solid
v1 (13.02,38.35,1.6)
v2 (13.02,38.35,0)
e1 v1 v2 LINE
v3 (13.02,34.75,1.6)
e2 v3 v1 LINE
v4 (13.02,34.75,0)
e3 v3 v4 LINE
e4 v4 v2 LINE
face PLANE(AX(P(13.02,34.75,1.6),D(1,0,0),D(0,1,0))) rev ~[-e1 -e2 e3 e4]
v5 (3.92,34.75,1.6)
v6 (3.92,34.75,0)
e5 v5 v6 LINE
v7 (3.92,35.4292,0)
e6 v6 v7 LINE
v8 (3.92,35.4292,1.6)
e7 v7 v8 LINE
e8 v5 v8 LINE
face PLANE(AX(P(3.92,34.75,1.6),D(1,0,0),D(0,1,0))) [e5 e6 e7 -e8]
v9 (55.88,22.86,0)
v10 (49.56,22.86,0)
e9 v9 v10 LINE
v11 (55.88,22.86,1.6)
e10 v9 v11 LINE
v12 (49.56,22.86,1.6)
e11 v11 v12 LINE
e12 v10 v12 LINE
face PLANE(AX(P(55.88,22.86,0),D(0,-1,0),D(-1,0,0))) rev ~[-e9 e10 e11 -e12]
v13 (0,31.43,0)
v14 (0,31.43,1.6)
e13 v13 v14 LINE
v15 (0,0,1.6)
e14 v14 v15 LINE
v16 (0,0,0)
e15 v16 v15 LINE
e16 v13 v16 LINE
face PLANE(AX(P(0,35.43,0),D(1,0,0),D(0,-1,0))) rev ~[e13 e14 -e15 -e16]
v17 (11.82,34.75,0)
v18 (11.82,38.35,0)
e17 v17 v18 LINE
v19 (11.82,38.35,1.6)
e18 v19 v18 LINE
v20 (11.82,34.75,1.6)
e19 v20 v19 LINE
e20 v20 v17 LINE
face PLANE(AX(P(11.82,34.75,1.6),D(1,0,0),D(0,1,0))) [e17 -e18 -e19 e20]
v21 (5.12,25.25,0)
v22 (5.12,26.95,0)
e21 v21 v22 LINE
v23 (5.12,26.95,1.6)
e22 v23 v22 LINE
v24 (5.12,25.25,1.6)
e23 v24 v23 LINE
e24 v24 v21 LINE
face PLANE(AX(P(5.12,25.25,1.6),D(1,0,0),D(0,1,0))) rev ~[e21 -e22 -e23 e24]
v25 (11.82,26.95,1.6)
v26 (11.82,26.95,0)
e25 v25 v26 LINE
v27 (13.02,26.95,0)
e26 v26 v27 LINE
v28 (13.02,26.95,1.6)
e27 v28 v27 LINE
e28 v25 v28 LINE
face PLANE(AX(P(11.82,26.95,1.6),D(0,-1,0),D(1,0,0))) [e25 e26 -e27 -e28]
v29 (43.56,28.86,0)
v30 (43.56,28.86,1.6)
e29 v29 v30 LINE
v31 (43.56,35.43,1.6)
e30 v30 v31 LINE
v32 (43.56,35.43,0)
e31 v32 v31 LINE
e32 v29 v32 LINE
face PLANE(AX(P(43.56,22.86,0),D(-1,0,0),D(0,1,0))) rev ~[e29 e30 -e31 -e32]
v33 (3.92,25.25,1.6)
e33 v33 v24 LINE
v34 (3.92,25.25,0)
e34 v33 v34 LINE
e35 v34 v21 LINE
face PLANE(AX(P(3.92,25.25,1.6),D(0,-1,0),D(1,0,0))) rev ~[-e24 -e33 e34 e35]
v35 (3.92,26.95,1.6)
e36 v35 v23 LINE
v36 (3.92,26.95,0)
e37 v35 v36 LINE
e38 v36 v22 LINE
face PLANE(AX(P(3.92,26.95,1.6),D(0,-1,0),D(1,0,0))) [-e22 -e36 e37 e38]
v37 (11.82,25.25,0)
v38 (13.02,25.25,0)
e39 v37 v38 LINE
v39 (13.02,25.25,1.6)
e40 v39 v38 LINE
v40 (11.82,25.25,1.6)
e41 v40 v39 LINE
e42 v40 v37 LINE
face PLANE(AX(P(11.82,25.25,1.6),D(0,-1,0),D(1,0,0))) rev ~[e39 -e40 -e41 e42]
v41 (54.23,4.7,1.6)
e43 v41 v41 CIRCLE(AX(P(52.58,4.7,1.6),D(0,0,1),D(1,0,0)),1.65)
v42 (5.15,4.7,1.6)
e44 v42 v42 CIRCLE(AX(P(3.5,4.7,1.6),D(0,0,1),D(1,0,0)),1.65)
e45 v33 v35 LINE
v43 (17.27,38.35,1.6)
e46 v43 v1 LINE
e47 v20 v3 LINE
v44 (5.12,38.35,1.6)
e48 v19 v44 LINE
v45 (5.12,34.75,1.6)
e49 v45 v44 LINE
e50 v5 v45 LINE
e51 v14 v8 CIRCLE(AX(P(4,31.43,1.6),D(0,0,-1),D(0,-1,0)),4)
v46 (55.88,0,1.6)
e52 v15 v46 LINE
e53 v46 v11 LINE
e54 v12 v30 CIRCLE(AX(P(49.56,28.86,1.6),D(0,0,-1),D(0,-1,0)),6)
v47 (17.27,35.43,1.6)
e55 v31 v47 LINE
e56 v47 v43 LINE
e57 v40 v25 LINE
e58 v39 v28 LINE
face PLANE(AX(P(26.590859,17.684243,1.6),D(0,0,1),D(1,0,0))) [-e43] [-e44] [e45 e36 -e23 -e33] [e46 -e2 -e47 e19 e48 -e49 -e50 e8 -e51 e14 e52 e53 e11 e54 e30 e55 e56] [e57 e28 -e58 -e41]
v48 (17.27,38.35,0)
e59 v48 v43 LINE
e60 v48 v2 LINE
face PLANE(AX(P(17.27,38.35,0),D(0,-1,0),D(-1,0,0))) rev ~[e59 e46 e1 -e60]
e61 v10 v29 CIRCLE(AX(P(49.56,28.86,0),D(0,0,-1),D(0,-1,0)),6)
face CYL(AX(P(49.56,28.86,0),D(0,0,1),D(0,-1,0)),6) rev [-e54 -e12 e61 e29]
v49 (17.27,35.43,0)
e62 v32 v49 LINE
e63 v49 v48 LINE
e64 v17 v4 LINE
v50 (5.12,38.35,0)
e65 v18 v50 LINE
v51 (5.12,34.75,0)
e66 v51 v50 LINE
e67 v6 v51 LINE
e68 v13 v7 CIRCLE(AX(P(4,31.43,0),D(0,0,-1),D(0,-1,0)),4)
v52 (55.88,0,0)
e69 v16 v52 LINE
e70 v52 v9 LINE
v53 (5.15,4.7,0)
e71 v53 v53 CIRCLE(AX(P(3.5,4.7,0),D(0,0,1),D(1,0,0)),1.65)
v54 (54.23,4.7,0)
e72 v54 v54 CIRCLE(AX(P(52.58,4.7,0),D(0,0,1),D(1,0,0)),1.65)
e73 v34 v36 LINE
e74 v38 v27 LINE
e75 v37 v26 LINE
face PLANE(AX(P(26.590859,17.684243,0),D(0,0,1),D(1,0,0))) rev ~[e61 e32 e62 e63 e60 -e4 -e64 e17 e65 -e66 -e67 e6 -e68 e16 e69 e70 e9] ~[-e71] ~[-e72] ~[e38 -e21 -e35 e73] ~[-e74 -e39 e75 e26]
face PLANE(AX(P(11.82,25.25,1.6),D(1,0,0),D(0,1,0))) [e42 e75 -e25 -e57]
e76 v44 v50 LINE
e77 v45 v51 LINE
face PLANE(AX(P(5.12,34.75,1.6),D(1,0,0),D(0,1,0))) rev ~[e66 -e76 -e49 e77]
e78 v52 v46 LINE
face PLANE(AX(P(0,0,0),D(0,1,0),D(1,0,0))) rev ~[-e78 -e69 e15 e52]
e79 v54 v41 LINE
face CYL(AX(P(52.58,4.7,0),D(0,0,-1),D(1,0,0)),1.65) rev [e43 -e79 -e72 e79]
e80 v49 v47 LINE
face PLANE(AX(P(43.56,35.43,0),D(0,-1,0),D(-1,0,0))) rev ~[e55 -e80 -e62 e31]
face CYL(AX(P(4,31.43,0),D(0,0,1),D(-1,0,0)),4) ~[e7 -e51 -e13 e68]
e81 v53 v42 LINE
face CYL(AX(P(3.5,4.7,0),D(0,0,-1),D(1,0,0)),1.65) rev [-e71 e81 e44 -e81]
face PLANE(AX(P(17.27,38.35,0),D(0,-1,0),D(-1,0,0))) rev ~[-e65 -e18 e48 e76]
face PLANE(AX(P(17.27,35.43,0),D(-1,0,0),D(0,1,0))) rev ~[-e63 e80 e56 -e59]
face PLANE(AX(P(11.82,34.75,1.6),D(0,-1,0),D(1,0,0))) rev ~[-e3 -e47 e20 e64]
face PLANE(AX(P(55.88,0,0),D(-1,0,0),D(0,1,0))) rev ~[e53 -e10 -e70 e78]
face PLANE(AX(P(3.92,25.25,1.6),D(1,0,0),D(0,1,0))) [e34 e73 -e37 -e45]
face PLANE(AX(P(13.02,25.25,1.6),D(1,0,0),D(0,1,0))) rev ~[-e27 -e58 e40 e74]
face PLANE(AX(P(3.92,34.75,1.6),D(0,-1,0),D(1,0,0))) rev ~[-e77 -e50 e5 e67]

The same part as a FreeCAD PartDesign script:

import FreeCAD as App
import Part
import Sketcher

V = App.Vector


def edges_at(feature, points):
    """Names of the edges that pass closest to the given points."""
    edges = feature.Shape.Edges
    near = lambda p: min(range(len(edges)), key=lambda i: edges[i].distToShape(Part.Vertex(*p))[0])
    return sorted({f"Edge{near(p) + 1}" for p in points})

doc = App.newDocument("Part")
body = doc.addObject("PartDesign::Body", "Body")

# Sketch on XY plane
sketch1 = body.newObject("Sketcher::SketchObject", "Sketch")
sketch1.AttachmentSupport = (doc.getObject("XY_Plane"), [""])
sketch1.MapMode = "FlatFace"
sketch1.addGeometry(Part.LineSegment(V(0, 35.43, 0), V(0, 0, 0)), False)
sketch1.addGeometry(Part.LineSegment(V(0, 0, 0), V(55.88, 0, 0)), False)
sketch1.addGeometry(Part.LineSegment(V(55.88, 0, 0), V(55.88, 22.86, 0)), False)
sketch1.addGeometry(Part.LineSegment(V(55.88, 22.86, 0), V(43.56, 22.86, 0)), False)
sketch1.addGeometry(Part.LineSegment(V(43.56, 22.86, 0), V(43.56, 35.43, 0)), False)
sketch1.addGeometry(Part.LineSegment(V(43.56, 35.43, 0), V(17.27, 35.43, 0)), False)
sketch1.addGeometry(Part.LineSegment(V(17.27, 35.43, 0), V(17.27, 38.35, 0)), False)
sketch1.addGeometry(Part.LineSegment(V(17.27, 38.35, 0), V(4.57, 38.35, 0)), False)
sketch1.addGeometry(Part.LineSegment(V(4.57, 38.35, 0), V(4.57, 35.43, 0)), False)
sketch1.addGeometry(Part.LineSegment(V(4.57, 35.43, 0), V(0, 35.43, 0)), False)
sketch1.addGeometry(Part.Circle(V(3.5, 4.7, 0), V(0, 0, 1), 1.65), False)
sketch1.addGeometry(Part.Circle(V(52.58, 4.7, 0), V(0, 0, 1), 1.65), False)
sketch1.addConstraint(Sketcher.Constraint("Coincident", 0, 2, 1, 1))
sketch1.addConstraint(Sketcher.Constraint("Coincident", 1, 2, 2, 1))
sketch1.addConstraint(Sketcher.Constraint("Coincident", 2, 2, 3, 1))
sketch1.addConstraint(Sketcher.Constraint("Coincident", 3, 2, 4, 1))
sketch1.addConstraint(Sketcher.Constraint("Coincident", 4, 2, 5, 1))
sketch1.addConstraint(Sketcher.Constraint("Coincident", 5, 2, 6, 1))
sketch1.addConstraint(Sketcher.Constraint("Coincident", 6, 2, 7, 1))
sketch1.addConstraint(Sketcher.Constraint("Coincident", 7, 2, 8, 1))
sketch1.addConstraint(Sketcher.Constraint("Coincident", 8, 2, 9, 1))
sketch1.addConstraint(Sketcher.Constraint("Coincident", 9, 2, 0, 1))
sketch1.addConstraint(Sketcher.Constraint("Vertical", 0))
sketch1.addConstraint(Sketcher.Constraint("Horizontal", 1))
sketch1.addConstraint(Sketcher.Constraint("Vertical", 2))
sketch1.addConstraint(Sketcher.Constraint("Horizontal", 3))
sketch1.addConstraint(Sketcher.Constraint("Vertical", 4))
sketch1.addConstraint(Sketcher.Constraint("Horizontal", 5))
sketch1.addConstraint(Sketcher.Constraint("Vertical", 6))
sketch1.addConstraint(Sketcher.Constraint("Horizontal", 7))
sketch1.addConstraint(Sketcher.Constraint("Vertical", 8))
sketch1.addConstraint(Sketcher.Constraint("Horizontal", 9))
sketch1.addConstraint(Sketcher.Constraint("Coincident", 0, 2, -1, 1))
sketch1.addConstraint(Sketcher.Constraint("Equal", 10, 11))
sketch1.addConstraint(Sketcher.Constraint("Horizontal", 10, 3, 11, 3))
sketch1.addConstraint(Sketcher.Constraint("Horizontal", 5, 2, 8, 2))
sketch1.addConstraint(Sketcher.Constraint("Diameter", 10, 3.3))
sketch1.addConstraint(Sketcher.Constraint("DistanceX", 7, 2, 7, 1, 12.7))
sketch1.addConstraint(Sketcher.Constraint("DistanceX", 1, 1, 1, 2, 55.88))
sketch1.addConstraint(Sketcher.Constraint("DistanceX", 3, 2, 3, 1, 12.32))
sketch1.addConstraint(Sketcher.Constraint("DistanceX", 5, 2, 5, 1, 26.29))
sketch1.addConstraint(Sketcher.Constraint("DistanceY", 0, 2, 0, 1, 35.43))
sketch1.addConstraint(Sketcher.Constraint("DistanceY", 2, 1, 2, 2, 22.86))
sketch1.addConstraint(Sketcher.Constraint("DistanceY", 6, 1, 6, 2, 2.92))
sketch1.addConstraint(Sketcher.Constraint("DistanceX", -1, 1, 10, 3, 3.5))
sketch1.addConstraint(Sketcher.Constraint("DistanceY", -1, 1, 10, 3, 4.7))
sketch1.addConstraint(Sketcher.Constraint("DistanceX", 11, 3, 1, 2, 3.3))
pad1 = body.newObject("PartDesign::Pad", "Pad")
pad1.Profile = sketch1
pad1.Length = 1.6
doc.recompute()

fillet = body.newObject("PartDesign::Fillet", "Fillet")
fillet.Base = (pad1, edges_at(pad1, [(0, 35.43, 0.8)]))
fillet.Radius = 4
doc.recompute()

fillet2 = body.newObject("PartDesign::Fillet", "Fillet001")
fillet2.Base = (fillet, edges_at(fillet, [(43.56, 22.86, 0.8)]))
fillet2.Radius = 6

# Sketch on XY plane
sketch2 = body.newObject("Sketcher::SketchObject", "Sketch001")
sketch2.AttachmentSupport = (doc.getObject("XY_Plane"), [""])
sketch2.MapMode = "FlatFace"
sketch2.AttachmentOffset = App.Placement(V(0, 0, 1.6), App.Rotation())
sketch2.addGeometry(Part.LineSegment(V(3.92, 38.35, 0), V(3.92, 34.75, 0)), False)
sketch2.addGeometry(Part.LineSegment(V(3.92, 34.75, 0), V(5.12, 34.75, 0)), False)
sketch2.addGeometry(Part.LineSegment(V(5.12, 34.75, 0), V(5.12, 38.35, 0)), False)
sketch2.addGeometry(Part.LineSegment(V(5.12, 38.35, 0), V(3.92, 38.35, 0)), False)
sketch2.addGeometry(Part.LineSegment(V(11.82, 38.35, 0), V(11.82, 34.75, 0)), False)
sketch2.addGeometry(Part.LineSegment(V(11.82, 34.75, 0), V(13.02, 34.75, 0)), False)
sketch2.addGeometry(Part.LineSegment(V(13.02, 34.75, 0), V(13.02, 38.35, 0)), False)
sketch2.addGeometry(Part.LineSegment(V(13.02, 38.35, 0), V(11.82, 38.35, 0)), False)
sketch2.addGeometry(Part.LineSegment(V(3.92, 26.95, 0), V(3.92, 25.25, 0)), False)
sketch2.addGeometry(Part.LineSegment(V(3.92, 25.25, 0), V(5.12, 25.25, 0)), False)
sketch2.addGeometry(Part.LineSegment(V(5.12, 25.25, 0), V(5.12, 26.95, 0)), False)
sketch2.addGeometry(Part.LineSegment(V(5.12, 26.95, 0), V(3.92, 26.95, 0)), False)
sketch2.addGeometry(Part.LineSegment(V(11.82, 26.95, 0), V(11.82, 25.25, 0)), False)
sketch2.addGeometry(Part.LineSegment(V(11.82, 25.25, 0), V(13.02, 25.25, 0)), False)
sketch2.addGeometry(Part.LineSegment(V(13.02, 25.25, 0), V(13.02, 26.95, 0)), False)
sketch2.addGeometry(Part.LineSegment(V(13.02, 26.95, 0), V(11.82, 26.95, 0)), False)
sketch2.addConstraint(Sketcher.Constraint("Coincident", 0, 2, 1, 1))
sketch2.addConstraint(Sketcher.Constraint("Coincident", 1, 2, 2, 1))
sketch2.addConstraint(Sketcher.Constraint("Coincident", 2, 2, 3, 1))
sketch2.addConstraint(Sketcher.Constraint("Coincident", 3, 2, 0, 1))
sketch2.addConstraint(Sketcher.Constraint("Coincident", 4, 2, 5, 1))
sketch2.addConstraint(Sketcher.Constraint("Coincident", 5, 2, 6, 1))
sketch2.addConstraint(Sketcher.Constraint("Coincident", 6, 2, 7, 1))
sketch2.addConstraint(Sketcher.Constraint("Coincident", 7, 2, 4, 1))
sketch2.addConstraint(Sketcher.Constraint("Coincident", 8, 2, 9, 1))
sketch2.addConstraint(Sketcher.Constraint("Coincident", 9, 2, 10, 1))
sketch2.addConstraint(Sketcher.Constraint("Coincident", 10, 2, 11, 1))
sketch2.addConstraint(Sketcher.Constraint("Coincident", 11, 2, 8, 1))
sketch2.addConstraint(Sketcher.Constraint("Coincident", 12, 2, 13, 1))
sketch2.addConstraint(Sketcher.Constraint("Coincident", 13, 2, 14, 1))
sketch2.addConstraint(Sketcher.Constraint("Coincident", 14, 2, 15, 1))
sketch2.addConstraint(Sketcher.Constraint("Coincident", 15, 2, 12, 1))
sketch2.addConstraint(Sketcher.Constraint("Vertical", 0))
sketch2.addConstraint(Sketcher.Constraint("Horizontal", 1))
sketch2.addConstraint(Sketcher.Constraint("Vertical", 2))
sketch2.addConstraint(Sketcher.Constraint("Horizontal", 3))
sketch2.addConstraint(Sketcher.Constraint("Vertical", 4))
sketch2.addConstraint(Sketcher.Constraint("Horizontal", 5))
sketch2.addConstraint(Sketcher.Constraint("Vertical", 6))
sketch2.addConstraint(Sketcher.Constraint("Horizontal", 7))
sketch2.addConstraint(Sketcher.Constraint("Vertical", 8))
sketch2.addConstraint(Sketcher.Constraint("Horizontal", 9))
sketch2.addConstraint(Sketcher.Constraint("Vertical", 10))
sketch2.addConstraint(Sketcher.Constraint("Horizontal", 11))
sketch2.addConstraint(Sketcher.Constraint("Vertical", 12))
sketch2.addConstraint(Sketcher.Constraint("Horizontal", 13))
sketch2.addConstraint(Sketcher.Constraint("Vertical", 14))
sketch2.addConstraint(Sketcher.Constraint("Horizontal", 15))
sketch2.addConstraint(Sketcher.Constraint("Horizontal", 1, 2, 4, 2))
sketch2.addConstraint(Sketcher.Constraint("Horizontal", 3, 2, 6, 2))
sketch2.addConstraint(Sketcher.Constraint("Horizontal", 9, 2, 12, 2))
sketch2.addConstraint(Sketcher.Constraint("Horizontal", 11, 2, 14, 2))
sketch2.addConstraint(Sketcher.Constraint("Vertical", 3, 2, 8, 2))
sketch2.addConstraint(Sketcher.Constraint("Vertical", 2, 2, 9, 2))
sketch2.addConstraint(Sketcher.Constraint("Vertical", 7, 2, 12, 2))
sketch2.addConstraint(Sketcher.Constraint("Vertical", 6, 2, 13, 2))
sketch2.addConstraint(Sketcher.Constraint("Equal", 3, 5))
sketch2.addConstraint(Sketcher.Constraint("DistanceX", 1, 1, 1, 2, 1.2))
sketch2.addConstraint(Sketcher.Constraint("DistanceY", 0, 2, 0, 1, 3.6))
sketch2.addConstraint(Sketcher.Constraint("DistanceY", 8, 2, 8, 1, 1.7))
sketch2.addConstraint(Sketcher.Constraint("DistanceX", 1, 2, 4, 2, 6.7))
sketch2.addConstraint(Sketcher.Constraint("DistanceY", 8, 2, 0, 2, 9.5))
sketch2.addConstraint(Sketcher.Constraint("DistanceX", -1, 1, 0, 2, 3.92))
sketch2.addConstraint(Sketcher.Constraint("DistanceY", -1, 1, 0, 2, 34.75))
pocket1 = body.newObject("PartDesign::Pocket", "Pocket")
pocket1.Profile = sketch2
pocket1.Type = "ThroughAll"

doc.recompute()
